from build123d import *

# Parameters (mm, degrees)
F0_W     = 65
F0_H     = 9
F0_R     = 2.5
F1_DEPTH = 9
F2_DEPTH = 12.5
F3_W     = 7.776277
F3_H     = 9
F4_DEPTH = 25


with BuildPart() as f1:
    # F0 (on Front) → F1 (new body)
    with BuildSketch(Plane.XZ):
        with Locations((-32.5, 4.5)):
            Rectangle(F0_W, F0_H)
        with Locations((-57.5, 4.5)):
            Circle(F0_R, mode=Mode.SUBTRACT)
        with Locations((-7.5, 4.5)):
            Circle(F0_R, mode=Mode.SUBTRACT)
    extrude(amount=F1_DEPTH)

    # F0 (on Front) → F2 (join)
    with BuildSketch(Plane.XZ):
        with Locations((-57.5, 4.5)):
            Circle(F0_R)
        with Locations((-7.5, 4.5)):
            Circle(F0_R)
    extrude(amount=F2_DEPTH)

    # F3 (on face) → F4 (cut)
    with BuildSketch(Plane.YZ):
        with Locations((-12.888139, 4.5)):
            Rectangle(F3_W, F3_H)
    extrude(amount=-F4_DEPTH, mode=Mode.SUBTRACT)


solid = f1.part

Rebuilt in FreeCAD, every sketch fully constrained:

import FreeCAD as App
import Part
import Sketcher


def add_polygon(sketch, points):
    """Adds a closed chain of lines whose ends are joined by coincident constraints."""
    first, n = sketch.GeometryCount, len(points)
    for a, b in zip(points, points[1:] + points[:1]):
        sketch.addGeometry(Part.LineSegment(App.Vector(*a, 0), App.Vector(*b, 0)), False)
    for i in range(n):
        sketch.addConstraint(Sketcher.Constraint("Coincident", first + i, 2, first + (i + 1) % n, 1))

doc = App.newDocument("Part")
body = doc.addObject("PartDesign::Body", "Body")

sketch1 = body.newObject("Sketcher::SketchObject", "Sketch")
sketch1.AttachmentSupport = (doc.getObject("XZ_Plane"), [""])
sketch1.MapMode = "FlatFace"
add_polygon(sketch1, [(-65, 9), (-65, 0), (0, 0), (0, 9)])
sketch1.addGeometry(Part.Circle(App.Vector(-57.5, 4.5, 0), App.Vector(0, 0, 1), 2.5), False)
sketch1.addGeometry(Part.Circle(App.Vector(-7.5, 4.5, 0), App.Vector(0, 0, 1), 2.5), False)
sketch1.addConstraint([
    Sketcher.Constraint("Vertical", 0),
    Sketcher.Constraint("Horizontal", 1),
    Sketcher.Constraint("Vertical", 2),
    Sketcher.Constraint("Horizontal", 3),
    Sketcher.Constraint("Coincident", 1, 2, -1, 1),
    Sketcher.Constraint("Equal", 4, 5),
    Sketcher.Constraint("Horizontal", 4, 3, 5, 3),
    Sketcher.Constraint("Diameter", 4, 5.0),
    Sketcher.Constraint("DistanceX", 1, 1, 1, 2, 65.0),
    Sketcher.Constraint("DistanceY", 0, 2, 0, 1, 9.0),
    Sketcher.Constraint("DistanceX", 4, 3, 5, 3, 50.0),
    Sketcher.Constraint("DistanceX", 4, 3, -1, 1, 57.5),
    Sketcher.Constraint("DistanceY", -1, 1, 4, 3, 4.5),
])
pad1 = body.newObject("PartDesign::Pad", "Pad")
pad1.Profile = sketch1
pad1.Length = 9

sketch2 = body.newObject("Sketcher::SketchObject", "Sketch001")
sketch2.AttachmentSupport = (doc.getObject("XZ_Plane"), [""])
sketch2.MapMode = "FlatFace"
sketch2.addGeometry([
    Part.Circle(App.Vector(-57.5, 4.5, 0), App.Vector(0, 0, 1), 2.5),
    Part.Circle(App.Vector(-7.5, 4.5, 0), App.Vector(0, 0, 1), 2.5),
], False)
sketch2.addConstraint([
    Sketcher.Constraint("Equal", 0, 1),
    Sketcher.Constraint("Horizontal", 0, 3, 1, 3),
    Sketcher.Constraint("Diameter", 0, 5.0),
    Sketcher.Constraint("DistanceX", 0, 3, 1, 3, 50.0),
    Sketcher.Constraint("DistanceX", 0, 3, -1, 1, 57.5),
    Sketcher.Constraint("DistanceY", -1, 1, 0, 3, 4.5),
])
pad2 = body.newObject("PartDesign::Pad", "Pad001")
pad2.Profile = sketch2
pad2.Length = 12.5

sketch3 = body.newObject("Sketcher::SketchObject", "Sketch002")
sketch3.AttachmentSupport = (doc.getObject("YZ_Plane"), [""])
sketch3.MapMode = "FlatFace"
add_polygon(sketch3, [(-17, 9), (-17, 0), (-9, 0), (-9, 9)])
sketch3.addConstraint([
    Sketcher.Constraint("Vertical", 0),
    Sketcher.Constraint("Horizontal", 1),
    Sketcher.Constraint("Vertical", 2),
    Sketcher.Constraint("Horizontal", 3),
    Sketcher.Constraint("PointOnObject", 0, 2, -1),
    Sketcher.Constraint("DistanceY", 0, 2, 0, 1, 9.0),
    Sketcher.Constraint("DistanceX", 1, 2, -1, 1, 9.000001),
    Sketcher.Constraint("DistanceX", 1, 1, 1, 2, 7.776277),
])
pocket1 = body.newObject("PartDesign::Pocket", "Pocket")
pocket1.Profile = sketch3
pocket1.Length = 25

doc.recompute()
